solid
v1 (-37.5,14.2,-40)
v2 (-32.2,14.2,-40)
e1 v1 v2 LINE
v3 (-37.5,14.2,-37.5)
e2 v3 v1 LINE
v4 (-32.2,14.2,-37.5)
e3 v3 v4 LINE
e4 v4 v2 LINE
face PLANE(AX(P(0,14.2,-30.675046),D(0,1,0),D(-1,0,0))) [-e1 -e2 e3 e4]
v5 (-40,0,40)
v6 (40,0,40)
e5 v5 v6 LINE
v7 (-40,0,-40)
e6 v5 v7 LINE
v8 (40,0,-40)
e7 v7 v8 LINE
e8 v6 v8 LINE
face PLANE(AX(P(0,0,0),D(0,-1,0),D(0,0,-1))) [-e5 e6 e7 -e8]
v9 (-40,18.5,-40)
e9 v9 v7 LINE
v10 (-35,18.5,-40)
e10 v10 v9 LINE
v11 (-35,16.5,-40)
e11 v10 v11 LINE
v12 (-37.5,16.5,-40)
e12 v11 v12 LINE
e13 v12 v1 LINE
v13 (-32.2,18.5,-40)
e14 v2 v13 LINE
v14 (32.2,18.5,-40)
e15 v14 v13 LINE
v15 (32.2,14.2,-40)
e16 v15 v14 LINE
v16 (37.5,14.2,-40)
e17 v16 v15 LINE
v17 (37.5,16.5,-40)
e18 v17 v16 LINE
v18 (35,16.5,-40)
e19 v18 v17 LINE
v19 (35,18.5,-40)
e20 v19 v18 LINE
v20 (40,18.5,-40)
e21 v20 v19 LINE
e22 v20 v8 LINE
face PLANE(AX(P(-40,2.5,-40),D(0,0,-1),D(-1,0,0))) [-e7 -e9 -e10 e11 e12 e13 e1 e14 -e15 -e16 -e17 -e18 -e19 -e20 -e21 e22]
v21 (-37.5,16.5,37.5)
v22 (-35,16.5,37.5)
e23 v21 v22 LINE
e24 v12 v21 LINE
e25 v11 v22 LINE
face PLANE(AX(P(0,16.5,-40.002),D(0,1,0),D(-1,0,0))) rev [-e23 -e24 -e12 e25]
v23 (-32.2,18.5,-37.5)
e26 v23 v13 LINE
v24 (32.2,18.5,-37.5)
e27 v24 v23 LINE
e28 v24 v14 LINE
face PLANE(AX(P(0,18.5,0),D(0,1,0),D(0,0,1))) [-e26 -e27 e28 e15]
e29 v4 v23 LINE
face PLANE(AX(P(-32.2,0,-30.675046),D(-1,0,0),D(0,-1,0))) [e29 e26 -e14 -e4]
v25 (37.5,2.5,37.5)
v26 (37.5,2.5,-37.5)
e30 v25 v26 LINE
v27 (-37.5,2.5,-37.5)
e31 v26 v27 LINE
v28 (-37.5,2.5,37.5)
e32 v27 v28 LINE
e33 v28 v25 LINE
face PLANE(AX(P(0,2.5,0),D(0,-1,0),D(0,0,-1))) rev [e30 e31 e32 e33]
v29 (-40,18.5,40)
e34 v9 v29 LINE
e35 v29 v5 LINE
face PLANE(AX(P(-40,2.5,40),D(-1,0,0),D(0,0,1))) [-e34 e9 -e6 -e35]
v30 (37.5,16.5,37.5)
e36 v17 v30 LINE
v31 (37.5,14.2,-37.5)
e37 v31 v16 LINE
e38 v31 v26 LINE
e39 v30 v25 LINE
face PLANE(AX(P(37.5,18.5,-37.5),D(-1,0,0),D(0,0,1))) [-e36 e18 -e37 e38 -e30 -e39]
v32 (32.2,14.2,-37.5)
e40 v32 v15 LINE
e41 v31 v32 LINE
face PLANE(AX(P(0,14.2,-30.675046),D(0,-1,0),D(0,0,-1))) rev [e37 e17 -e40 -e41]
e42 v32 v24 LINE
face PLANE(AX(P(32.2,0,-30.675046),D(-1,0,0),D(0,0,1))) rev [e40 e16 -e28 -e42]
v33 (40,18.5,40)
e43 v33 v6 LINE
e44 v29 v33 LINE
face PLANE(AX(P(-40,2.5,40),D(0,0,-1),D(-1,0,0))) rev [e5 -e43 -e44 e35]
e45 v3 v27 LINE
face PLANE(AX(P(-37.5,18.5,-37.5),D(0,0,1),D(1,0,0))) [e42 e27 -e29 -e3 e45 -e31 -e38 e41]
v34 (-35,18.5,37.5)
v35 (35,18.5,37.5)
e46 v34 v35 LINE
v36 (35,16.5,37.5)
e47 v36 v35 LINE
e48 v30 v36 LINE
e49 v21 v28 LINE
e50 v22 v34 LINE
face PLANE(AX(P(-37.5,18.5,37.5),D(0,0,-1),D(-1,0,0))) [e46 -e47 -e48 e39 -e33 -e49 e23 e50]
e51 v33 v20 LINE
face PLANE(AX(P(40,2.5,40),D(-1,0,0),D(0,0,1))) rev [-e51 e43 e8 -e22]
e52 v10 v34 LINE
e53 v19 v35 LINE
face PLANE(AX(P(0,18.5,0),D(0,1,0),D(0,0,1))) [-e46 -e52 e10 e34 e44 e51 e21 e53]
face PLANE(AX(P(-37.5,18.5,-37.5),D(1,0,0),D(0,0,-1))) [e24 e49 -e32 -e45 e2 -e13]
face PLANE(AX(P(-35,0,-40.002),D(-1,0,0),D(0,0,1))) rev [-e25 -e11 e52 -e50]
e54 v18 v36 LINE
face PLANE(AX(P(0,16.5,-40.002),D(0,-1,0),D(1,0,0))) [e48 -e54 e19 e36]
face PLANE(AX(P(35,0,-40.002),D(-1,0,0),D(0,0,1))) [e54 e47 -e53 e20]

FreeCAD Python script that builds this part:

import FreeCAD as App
import Part
import Sketcher

V = App.Vector

doc = App.newDocument("Part")
body = doc.addObject("PartDesign::Body", "Body")

# Sketch on XZ plane
sketch1 = body.newObject("Sketcher::SketchObject", "Sketch")
sketch1.AttachmentSupport = (doc.getObject("XZ_Plane"), [""])
sketch1.MapMode = "FlatFace"
sketch1.addGeometry([
    Part.LineSegment(V(-40, -40, 0), V(-40, 40, 0)),
    Part.LineSegment(V(-40, 40, 0), V(40, 40, 0)),
    Part.LineSegment(V(40, 40, 0), V(40, -40, 0)),
    Part.LineSegment(V(40, -40, 0), V(-40, -40, 0)),
], False)
sketch1.addConstraint([
    Sketcher.Constraint("Coincident", 0, 2, 1, 1),
    Sketcher.Constraint("Coincident", 1, 2, 2, 1),
    Sketcher.Constraint("Coincident", 2, 2, 3, 1),
    Sketcher.Constraint("Coincident", 3, 2, 0, 1),
    Sketcher.Constraint("Vertical", 0),
    Sketcher.Constraint("Horizontal", 1),
    Sketcher.Constraint("Vertical", 2),
    Sketcher.Constraint("Horizontal", 3),
    Sketcher.Constraint("Symmetric", 0, 2, 2, 2, -1, 1),
    Sketcher.Constraint("Equal", 3, 0),
    Sketcher.Constraint("DistanceX", 1, 1, 1, 2, 80.0),
])
pad1 = body.newObject("PartDesign::Pad", "Pad")
pad1.Profile = sketch1
pad1.Length = 2.5
pad1.Reversed = True

# Sketch on XZ plane
sketch2 = body.newObject("Sketcher::SketchObject", "Sketch001")
sketch2.AttachmentSupport = (doc.getObject("XZ_Plane"), [""])
sketch2.MapMode = "FlatFace"
sketch2.AttachmentOffset = App.Placement(V(0, 0, -2.5), App.Rotation())
sketch2.addGeometry([
    Part.LineSegment(V(-40, -40, 0), V(-40, 40, 0)),  # 0
    Part.LineSegment(V(-40, 40, 0), V(40, 40, 0)),  # 1
    Part.LineSegment(V(40, 40, 0), V(40, -40, 0)),  # 2
    Part.LineSegment(V(40, -40, 0), V(-40, -40, 0)),  # 3
    Part.LineSegment(V(38, 38, 0), V(-38, 38, 0)),  # 4
    Part.LineSegment(V(-38, 38, 0), V(-38, -38, 0)),  # 5
    Part.LineSegment(V(-38, -38, 0), V(38, -38, 0)),  # 6
    Part.LineSegment(V(38, -38, 0), V(38, 38, 0)),  # 7
], False)
sketch2.addConstraint([
    Sketcher.Constraint("Coincident", 0, 2, 1, 1),
    Sketcher.Constraint("Coincident", 1, 2, 2, 1),
    Sketcher.Constraint("Coincident", 2, 2, 3, 1),
    Sketcher.Constraint("Coincident", 3, 2, 0, 1),
    Sketcher.Constraint("Coincident", 4, 2, 5, 1),
    Sketcher.Constraint("Coincident", 5, 2, 6, 1),
    Sketcher.Constraint("Coincident", 6, 2, 7, 1),
    Sketcher.Constraint("Coincident", 7, 2, 4, 1),
    Sketcher.Constraint("Vertical", 0),
    Sketcher.Constraint("Horizontal", 1),
    Sketcher.Constraint("Vertical", 2),
    Sketcher.Constraint("Horizontal", 3),
    Sketcher.Constraint("Horizontal", 4),
    Sketcher.Constraint("Vertical", 5),
    Sketcher.Constraint("Horizontal", 6),
    Sketcher.Constraint("Vertical", 7),
    Sketcher.Constraint("Symmetric", 0, 2, 2, 2, -1, 1),
    Sketcher.Constraint("Symmetric", 4, 2, 6, 2, -1, 1),
    Sketcher.Constraint("Equal", 3, 0),
    Sketcher.Constraint("Equal", 6, 5),
    Sketcher.Constraint("DistanceX", 1, 1, 1, 2, 80.0),
    Sketcher.Constraint("DistanceX", 4, 2, 4, 1, 75.0),
])
pad2 = body.newObject("PartDesign::Pad", "Pad001")
pad2.Profile = sketch2
pad2.Length = 16
pad2.Reversed = True

# Sketch on XY plane
sketch3 = body.newObject("Sketcher::SketchObject", "Sketch002")
sketch3.AttachmentSupport = (doc.getObject("XY_Plane"), [""])
sketch3.MapMode = "FlatFace"
sketch3.AttachmentOffset = App.Placement(V(0, 0, 40), App.Rotation())
sketch3.addGeometry([
    Part.LineSegment(V(-40, 18.5, 0), V(-40, 16.5, 0)),
    Part.LineSegment(V(-40, 16.5, 0), V(-35, 16.5, 0)),
    Part.LineSegment(V(-35, 16.5, 0), V(-35, 18.5, 0)),
    Part.LineSegment(V(-35, 18.5, 0), V(-40, 18.5, 0)),
], False)
sketch3.addConstraint([
    Sketcher.Constraint("Coincident", 0, 2, 1, 1),
    Sketcher.Constraint("Coincident", 1, 2, 2, 1),
    Sketcher.Constraint("Coincident", 2, 2, 3, 1),
    Sketcher.Constraint("Coincident", 3, 2, 0, 1),
    Sketcher.Constraint("Vertical", 0),
    Sketcher.Constraint("Horizontal", 1),
    Sketcher.Constraint("Vertical", 2),
    Sketcher.Constraint("Horizontal", 3),
    Sketcher.Constraint("DistanceX", 1, 1, 1, 2, 5.0),
    Sketcher.Constraint("DistanceY", 0, 2, 0, 1, 2.0),
    Sketcher.Constraint("DistanceX", 0, 2, -1, 1, 40.0),
    Sketcher.Constraint("DistanceY", -1, 1, 0, 2, 16.5),
])
pad3 = body.newObject("PartDesign::Pad", "Pad002")
pad3.Profile = sketch3
pad3.Length = 77.5
pad3.Reversed = True

# Sketch on XY plane
sketch4 = body.newObject("Sketcher::SketchObject", "Sketch003")
sketch4.AttachmentSupport = (doc.getObject("XY_Plane"), [""])
sketch4.MapMode = "FlatFace"
sketch4.AttachmentOffset = App.Placement(V(0, 0, 40), App.Rotation())
sketch4.addGeometry([
    Part.LineSegment(V(35, 18.5, 0), V(35, 16.5, 0)),
    Part.LineSegment(V(35, 16.5, 0), V(40, 16.5, 0)),
    Part.LineSegment(V(40, 16.5, 0), V(40, 18.5, 0)),
    Part.LineSegment(V(40, 18.5, 0), V(35, 18.5, 0)),
], False)
sketch4.addConstraint([
    Sketcher.Constraint("Coincident", 0, 2, 1, 1),
    Sketcher.Constraint("Coincident", 1, 2, 2, 1),
    Sketcher.Constraint("Coincident", 2, 2, 3, 1),
    Sketcher.Constraint("Coincident", 3, 2, 0, 1),
    Sketcher.Constraint("Vertical", 0),
    Sketcher.Constraint("Horizontal", 1),
    Sketcher.Constraint("Vertical", 2),
    Sketcher.Constraint("Horizontal", 3),
    Sketcher.Constraint("DistanceX", 1, 1, 1, 2, 5.0),
    Sketcher.Constraint("DistanceY", 0, 2, 0, 1, 2.0),
    Sketcher.Constraint("DistanceX", -1, 1, 0, 2, 35.0),
    Sketcher.Constraint("DistanceY", -1, 1, 0, 2, 16.5),
])
pad4 = body.newObject("PartDesign::Pad", "Pad003")
pad4.Profile = sketch4
pad4.Length = 77.5
pad4.Reversed = True

# Sketch on XY plane
sketch5 = body.newObject("Sketcher::SketchObject", "Sketch004")
sketch5.AttachmentSupport = (doc.getObject("XY_Plane"), [""])
sketch5.MapMode = "FlatFace"
sketch5.AttachmentOffset = App.Placement(V(0, 0, -40), App.Rotation())
sketch5.addGeometry([
    Part.LineSegment(V(32.2, 18.5, 0), V(35, 18.5, 0)),  # 0
    Part.LineSegment(V(35, 18.5, 0), V(35, 16.5, 0)),  # 1
    Part.LineSegment(V(35, 16.5, 0), V(37.5, 16.5, 0)),  # 2
    Part.LineSegment(V(37.5, 16.5, 0), V(37.5, 14.2, 0)),  # 3
    Part.LineSegment(V(37.5, 14.2, 0), V(32.2, 14.2, 0)),  # 4
    Part.LineSegment(V(32.2, 14.2, 0), V(32.2, 18.5, 0)),  # 5
    Part.LineSegment(V(-35, 18.5, 0), V(-32.2, 18.5, 0)),  # 6
    Part.LineSegment(V(-32.2, 18.5, 0), V(-32.2, 14.2, 0)),  # 7
    Part.LineSegment(V(-32.2, 14.2, 0), V(-37.5, 14.2, 0)),  # 8
    Part.LineSegment(V(-37.5, 14.2, 0), V(-37.5, 16.5, 0)),  # 9
    Part.LineSegment(V(-37.5, 16.5, 0), V(-35, 16.5, 0)),  # 10
    Part.LineSegment(V(-35, 16.5, 0), V(-35, 18.5, 0)),  # 11
], False)
sketch5.addConstraint([
    Sketcher.Constraint("Coincident", 0, 2, 1, 1),
    Sketcher.Constraint("Coincident", 1, 2, 2, 1),
    Sketcher.Constraint("Coincident", 2, 2, 3, 1),
    Sketcher.Constraint("Coincident", 3, 2, 4, 1),
    Sketcher.Constraint("Coincident", 4, 2, 5, 1),
    Sketcher.Constraint("Coincident", 5, 2, 0, 1),
    Sketcher.Constraint("Coincident", 6, 2, 7, 1),
    Sketcher.Constraint("Coincident", 7, 2, 8, 1),
    Sketcher.Constraint("Coincident", 8, 2, 9, 1),
    Sketcher.Constraint("Coincident", 9, 2, 10, 1),
    Sketcher.Constraint("Coincident", 10, 2, 11, 1),
    Sketcher.Constraint("Coincident", 11, 2, 6, 1),
    Sketcher.Constraint("Horizontal", 0),
    Sketcher.Constraint("Vertical", 1),
    Sketcher.Constraint("Horizontal", 2),
    Sketcher.Constraint("Vertical", 3),
    Sketcher.Constraint("Horizontal", 4),
    Sketcher.Constraint("Vertical", 5),
    Sketcher.Constraint("Horizontal", 6),
    Sketcher.Constraint("Vertical", 7),
    Sketcher.Constraint("Horizontal", 8),
    Sketcher.Constraint("Vertical", 9),
    Sketcher.Constraint("Horizontal", 10),
    Sketcher.Constraint("Vertical", 11),
    Sketcher.Constraint("Symmetric", 5, 2, 6, 2, -2),
    Sketcher.Constraint("Symmetric", 3, 2, 8, 2, -2),
    Sketcher.Constraint("Symmetric", 1, 2, 10, 2, -2),
    Sketcher.Constraint("DistanceY", 1, 2, 1, 1, 2.0),
    Sketcher.Constraint("DistanceX", 0, 1, 0, 2, 2.8),
    Sketcher.Constraint("DistanceX", 2, 1, 2, 2, 2.5),
    Sketcher.Constraint("DistanceY", 3, 2, 3, 1, 2.3),
    Sketcher.Constraint("DistanceX", -1, 1, 0, 2, 35.0),
    Sketcher.Constraint("DistanceY", -1, 1, 0, 2, 18.5),
])
pocket1 = body.newObject("PartDesign::Pocket", "Pocket")
pocket1.Profile = sketch5
pocket1.Length = 2.5
pocket1.Reversed = True

doc.recompute()
